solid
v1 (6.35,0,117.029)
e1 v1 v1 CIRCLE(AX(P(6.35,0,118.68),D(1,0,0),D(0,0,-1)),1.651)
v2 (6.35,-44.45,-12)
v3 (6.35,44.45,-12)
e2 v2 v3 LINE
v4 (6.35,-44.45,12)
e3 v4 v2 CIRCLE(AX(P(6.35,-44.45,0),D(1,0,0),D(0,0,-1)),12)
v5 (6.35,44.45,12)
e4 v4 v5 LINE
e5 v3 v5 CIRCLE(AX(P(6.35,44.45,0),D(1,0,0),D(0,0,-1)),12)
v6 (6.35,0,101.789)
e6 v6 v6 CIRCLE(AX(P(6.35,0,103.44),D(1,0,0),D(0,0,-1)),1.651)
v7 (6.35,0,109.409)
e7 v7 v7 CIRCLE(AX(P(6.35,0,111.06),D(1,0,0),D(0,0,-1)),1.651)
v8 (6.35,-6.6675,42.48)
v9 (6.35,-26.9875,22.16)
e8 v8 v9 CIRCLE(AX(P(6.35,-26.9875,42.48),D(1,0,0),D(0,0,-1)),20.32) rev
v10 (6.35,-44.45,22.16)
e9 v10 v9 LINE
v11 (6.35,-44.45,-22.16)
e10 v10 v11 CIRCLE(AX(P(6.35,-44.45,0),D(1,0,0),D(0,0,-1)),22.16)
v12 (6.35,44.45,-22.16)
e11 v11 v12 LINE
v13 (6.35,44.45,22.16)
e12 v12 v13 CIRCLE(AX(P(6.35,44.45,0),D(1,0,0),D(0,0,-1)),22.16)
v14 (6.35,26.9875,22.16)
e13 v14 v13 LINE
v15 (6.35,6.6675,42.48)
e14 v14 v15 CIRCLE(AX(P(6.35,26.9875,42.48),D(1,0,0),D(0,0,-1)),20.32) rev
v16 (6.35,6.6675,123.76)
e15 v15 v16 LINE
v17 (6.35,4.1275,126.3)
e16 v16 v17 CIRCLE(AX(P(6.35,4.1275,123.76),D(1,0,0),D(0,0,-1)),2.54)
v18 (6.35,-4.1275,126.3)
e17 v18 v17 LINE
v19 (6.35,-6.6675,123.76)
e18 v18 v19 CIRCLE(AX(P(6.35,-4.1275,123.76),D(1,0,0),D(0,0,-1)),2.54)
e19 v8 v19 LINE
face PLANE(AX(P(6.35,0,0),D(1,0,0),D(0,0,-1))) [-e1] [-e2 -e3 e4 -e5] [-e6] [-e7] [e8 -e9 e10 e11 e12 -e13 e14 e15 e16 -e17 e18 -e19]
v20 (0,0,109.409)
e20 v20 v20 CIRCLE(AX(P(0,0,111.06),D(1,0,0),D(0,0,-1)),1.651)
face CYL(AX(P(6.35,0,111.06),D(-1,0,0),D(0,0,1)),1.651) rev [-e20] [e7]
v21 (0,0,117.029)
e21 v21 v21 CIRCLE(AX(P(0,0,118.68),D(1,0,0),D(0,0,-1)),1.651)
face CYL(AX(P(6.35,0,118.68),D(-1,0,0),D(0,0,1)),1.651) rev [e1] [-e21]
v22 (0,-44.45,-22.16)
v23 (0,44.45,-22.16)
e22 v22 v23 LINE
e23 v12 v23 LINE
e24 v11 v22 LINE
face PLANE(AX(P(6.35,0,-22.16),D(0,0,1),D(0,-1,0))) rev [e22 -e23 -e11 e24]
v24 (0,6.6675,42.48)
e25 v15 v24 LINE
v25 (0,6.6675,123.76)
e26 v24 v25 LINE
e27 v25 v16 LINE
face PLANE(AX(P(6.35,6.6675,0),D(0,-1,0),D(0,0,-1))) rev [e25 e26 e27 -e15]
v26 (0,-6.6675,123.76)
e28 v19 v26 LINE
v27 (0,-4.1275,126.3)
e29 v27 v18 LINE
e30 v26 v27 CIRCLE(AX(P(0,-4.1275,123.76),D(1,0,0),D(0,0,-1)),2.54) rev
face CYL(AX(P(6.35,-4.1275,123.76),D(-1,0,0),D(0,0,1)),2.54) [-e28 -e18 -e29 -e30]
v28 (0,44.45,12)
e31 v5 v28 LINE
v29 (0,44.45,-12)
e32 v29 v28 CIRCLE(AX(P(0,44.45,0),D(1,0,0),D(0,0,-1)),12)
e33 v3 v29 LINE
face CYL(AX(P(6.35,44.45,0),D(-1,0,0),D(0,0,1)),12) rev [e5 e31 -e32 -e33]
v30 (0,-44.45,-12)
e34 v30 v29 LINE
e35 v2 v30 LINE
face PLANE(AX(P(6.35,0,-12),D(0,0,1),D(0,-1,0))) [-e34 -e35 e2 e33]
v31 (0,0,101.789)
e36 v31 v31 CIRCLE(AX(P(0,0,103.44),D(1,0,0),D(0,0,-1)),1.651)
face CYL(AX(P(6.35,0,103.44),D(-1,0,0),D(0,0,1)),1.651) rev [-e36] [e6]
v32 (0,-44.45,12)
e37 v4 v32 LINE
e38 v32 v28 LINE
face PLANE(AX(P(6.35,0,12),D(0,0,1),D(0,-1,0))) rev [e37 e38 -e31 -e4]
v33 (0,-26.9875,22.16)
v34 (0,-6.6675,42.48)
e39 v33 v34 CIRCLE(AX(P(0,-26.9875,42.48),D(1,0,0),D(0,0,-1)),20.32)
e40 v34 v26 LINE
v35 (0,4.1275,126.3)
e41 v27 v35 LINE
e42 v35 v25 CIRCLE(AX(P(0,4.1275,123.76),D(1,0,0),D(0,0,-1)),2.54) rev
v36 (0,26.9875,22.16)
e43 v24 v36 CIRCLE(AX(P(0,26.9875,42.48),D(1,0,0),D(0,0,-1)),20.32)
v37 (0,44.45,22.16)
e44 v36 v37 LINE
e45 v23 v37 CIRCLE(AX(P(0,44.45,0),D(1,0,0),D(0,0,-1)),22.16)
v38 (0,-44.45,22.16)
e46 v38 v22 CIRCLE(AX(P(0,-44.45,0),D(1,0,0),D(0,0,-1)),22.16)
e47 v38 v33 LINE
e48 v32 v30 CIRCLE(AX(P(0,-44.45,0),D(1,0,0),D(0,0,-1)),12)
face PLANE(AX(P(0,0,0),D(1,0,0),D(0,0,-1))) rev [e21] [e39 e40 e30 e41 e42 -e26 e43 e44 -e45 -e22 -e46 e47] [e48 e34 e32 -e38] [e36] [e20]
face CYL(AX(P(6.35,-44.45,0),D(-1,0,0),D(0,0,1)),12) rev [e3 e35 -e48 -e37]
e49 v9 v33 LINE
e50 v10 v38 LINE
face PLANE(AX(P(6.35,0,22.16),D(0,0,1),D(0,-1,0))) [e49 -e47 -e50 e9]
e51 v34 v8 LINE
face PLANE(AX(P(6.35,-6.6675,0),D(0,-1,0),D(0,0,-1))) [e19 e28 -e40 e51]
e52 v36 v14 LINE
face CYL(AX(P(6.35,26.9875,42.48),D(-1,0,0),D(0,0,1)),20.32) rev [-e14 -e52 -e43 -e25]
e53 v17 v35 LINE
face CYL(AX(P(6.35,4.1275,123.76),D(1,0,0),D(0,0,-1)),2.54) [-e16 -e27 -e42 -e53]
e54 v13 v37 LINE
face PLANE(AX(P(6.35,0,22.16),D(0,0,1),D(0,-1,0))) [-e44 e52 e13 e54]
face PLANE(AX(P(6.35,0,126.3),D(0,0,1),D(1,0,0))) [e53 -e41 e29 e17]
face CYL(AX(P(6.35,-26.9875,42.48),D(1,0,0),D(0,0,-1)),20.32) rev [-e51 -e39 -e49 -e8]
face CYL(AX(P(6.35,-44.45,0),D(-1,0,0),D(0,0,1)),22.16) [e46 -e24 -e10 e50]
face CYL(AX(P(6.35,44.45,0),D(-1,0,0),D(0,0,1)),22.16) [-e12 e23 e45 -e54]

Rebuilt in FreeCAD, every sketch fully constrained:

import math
import FreeCAD as App
import Part
import Sketcher

V = App.Vector
Q = App.Units.Quantity


def edges_at(feature, points):
    """Names of the edges that pass closest to the given points."""
    edges = feature.Shape.Edges
    near = lambda p: min(range(len(edges)), key=lambda i: edges[i].distToShape(Part.Vertex(*p))[0])
    return sorted({f"Edge{near(p) + 1}" for p in points})

doc = App.newDocument("Part")
body = doc.addObject("PartDesign::Body", "Body")

# Sketch on YZ plane
sketch1 = body.newObject("Sketcher::SketchObject", "Sketch")
sketch1.AttachmentSupport = (doc.getObject("YZ_Plane"), [""])
sketch1.MapMode = "FlatFace"
sketch1.addGeometry([
    Part.LineSegment(V(-6.7, 22.2, 0), V(-44.5, 22.2, 0)),  # 0
    Part.ArcOfCircle(Part.Circle(V(-44.5, 0, 0), V(0, 0, 1), 22.2), math.radians(90), math.radians(270)),  # 1
    Part.LineSegment(V(-44.5, -22.2, 0), V(44.5, -22.2, 0)),  # 2
    Part.ArcOfCircle(Part.Circle(V(44.5, 0, 0), V(0, 0, 1), 22.2), math.radians(-90), math.radians(90)),  # 3
    Part.LineSegment(V(44.5, 22.2, 0), V(6.7, 22.2, 0)),  # 4
    Part.LineSegment(V(6.7, 22.2, 0), V(6.7, 126.3, 0)),  # 5
    Part.LineSegment(V(6.7, 126.3, 0), V(-6.7, 126.3, 0)),  # 6
    Part.LineSegment(V(-6.7, 126.3, 0), V(-6.7, 22.2, 0)),  # 7
    Part.Circle(V(0, 118.7, 0), V(0, 0, 1), 1.7),  # 8
    Part.Circle(V(0, 111.1, 0), V(0, 0, 1), 1.7),  # 9
    Part.Circle(V(0, 103.4, 0), V(0, 0, 1), 1.7),  # 10
    Part.LineSegment(V(44.5, -12, 0), V(-44.5, -12, 0)),  # 11
    Part.ArcOfCircle(Part.Circle(V(-44.5, 0, 0), V(0, 0, 1), 12), math.radians(90), math.radians(270)),  # 12
    Part.LineSegment(V(-44.5, 12, 0), V(44.5, 12, 0)),  # 13
    Part.ArcOfCircle(Part.Circle(V(44.5, 0, 0), V(0, 0, 1), 12), math.radians(-90), math.radians(90)),  # 14
], False)
sketch1.addConstraint([
    Sketcher.Constraint("Tangent", 0, 2, 1, 1),
    Sketcher.Constraint("Tangent", 1, 2, 2, 1),
    Sketcher.Constraint("Tangent", 2, 2, 3, 1),
    Sketcher.Constraint("Tangent", 3, 2, 4, 1),
    Sketcher.Constraint("Coincident", 4, 2, 5, 1),
    Sketcher.Constraint("Coincident", 5, 2, 6, 1),
    Sketcher.Constraint("Coincident", 6, 2, 7, 1),
    Sketcher.Constraint("Coincident", 7, 2, 0, 1),
    Sketcher.Constraint("Tangent", 11, 2, 12, 2),
    Sketcher.Constraint("Tangent", 12, 1, 13, 1),
    Sketcher.Constraint("Tangent", 13, 2, 14, 2),
    Sketcher.Constraint("Tangent", 14, 1, 11, 1),
    Sketcher.Constraint("Horizontal", 0),
    Sketcher.Constraint("Horizontal", 2),
    Sketcher.Constraint("Horizontal", 4),
    Sketcher.Constraint("Vertical", 5),
    Sketcher.Constraint("Horizontal", 6),
    Sketcher.Constraint("Vertical", 7),
    Sketcher.Constraint("Horizontal", 11),
    Sketcher.Constraint("Horizontal", 13),
    Sketcher.Constraint("Coincident", 12, 3, 1, 3),
    Sketcher.Constraint("Coincident", 14, 3, 3, 3),
    Sketcher.Constraint("Equal", 8, 9),
    Sketcher.Constraint("Equal", 9, 10),
    Sketcher.Constraint("Symmetric", 1, 3, 3, 3, -1, 1),
    Sketcher.Constraint("PointOnObject", 8, 3, -2),
    Sketcher.Constraint("PointOnObject", 9, 3, -2),
    Sketcher.Constraint("PointOnObject", 10, 3, -2),
    Sketcher.Constraint("Equal", 0, 4),
    Sketcher.Constraint("Diameter", 8, Q("0.13 in")),
    Sketcher.Constraint("DistanceX", 2, 1, 2, 2, Q("3.5 in")),
    Sketcher.Constraint("DistanceY", 5, 1, 5, 2, Q("4.1 in")),
    Sketcher.Constraint("DistanceY", 9, 3, 8, 3, Q("0.3 in")),
    Sketcher.Constraint("DistanceY", 10, 3, 9, 3, Q("0.3 in")),
    Sketcher.Constraint("DistanceY", 0, 2, 10, 3, Q("3.2 in")),
    Sketcher.Constraint("DistanceY", 1, 2, 11, 2, Q("0.4 in")),
    Sketcher.Constraint("DistanceX", 6, 2, 6, 1, Q("0.525 in")),
    Sketcher.Constraint("Radius", 1, Q("22.16 mm")),
])
pad1 = body.newObject("PartDesign::Pad", "Pad")
pad1.Profile = sketch1
pad1.Length = Q("0.25 in")
doc.recompute()

fillet = body.newObject("PartDesign::Fillet", "Fillet")
fillet.Base = (pad1, edges_at(pad1, [(3.175, 6.668, 22.16), (3.175, -6.668, 22.16)]))
fillet.Radius = Q("0.8 in")
doc.recompute()

fillet2 = body.newObject("PartDesign::Fillet", "Fillet001")
fillet2.Base = (fillet, edges_at(fillet, [(3.175, 6.668, 126.3), (3.175, -6.668, 126.3)]))
fillet2.Radius = Q("0.1 in")

doc.recompute()
